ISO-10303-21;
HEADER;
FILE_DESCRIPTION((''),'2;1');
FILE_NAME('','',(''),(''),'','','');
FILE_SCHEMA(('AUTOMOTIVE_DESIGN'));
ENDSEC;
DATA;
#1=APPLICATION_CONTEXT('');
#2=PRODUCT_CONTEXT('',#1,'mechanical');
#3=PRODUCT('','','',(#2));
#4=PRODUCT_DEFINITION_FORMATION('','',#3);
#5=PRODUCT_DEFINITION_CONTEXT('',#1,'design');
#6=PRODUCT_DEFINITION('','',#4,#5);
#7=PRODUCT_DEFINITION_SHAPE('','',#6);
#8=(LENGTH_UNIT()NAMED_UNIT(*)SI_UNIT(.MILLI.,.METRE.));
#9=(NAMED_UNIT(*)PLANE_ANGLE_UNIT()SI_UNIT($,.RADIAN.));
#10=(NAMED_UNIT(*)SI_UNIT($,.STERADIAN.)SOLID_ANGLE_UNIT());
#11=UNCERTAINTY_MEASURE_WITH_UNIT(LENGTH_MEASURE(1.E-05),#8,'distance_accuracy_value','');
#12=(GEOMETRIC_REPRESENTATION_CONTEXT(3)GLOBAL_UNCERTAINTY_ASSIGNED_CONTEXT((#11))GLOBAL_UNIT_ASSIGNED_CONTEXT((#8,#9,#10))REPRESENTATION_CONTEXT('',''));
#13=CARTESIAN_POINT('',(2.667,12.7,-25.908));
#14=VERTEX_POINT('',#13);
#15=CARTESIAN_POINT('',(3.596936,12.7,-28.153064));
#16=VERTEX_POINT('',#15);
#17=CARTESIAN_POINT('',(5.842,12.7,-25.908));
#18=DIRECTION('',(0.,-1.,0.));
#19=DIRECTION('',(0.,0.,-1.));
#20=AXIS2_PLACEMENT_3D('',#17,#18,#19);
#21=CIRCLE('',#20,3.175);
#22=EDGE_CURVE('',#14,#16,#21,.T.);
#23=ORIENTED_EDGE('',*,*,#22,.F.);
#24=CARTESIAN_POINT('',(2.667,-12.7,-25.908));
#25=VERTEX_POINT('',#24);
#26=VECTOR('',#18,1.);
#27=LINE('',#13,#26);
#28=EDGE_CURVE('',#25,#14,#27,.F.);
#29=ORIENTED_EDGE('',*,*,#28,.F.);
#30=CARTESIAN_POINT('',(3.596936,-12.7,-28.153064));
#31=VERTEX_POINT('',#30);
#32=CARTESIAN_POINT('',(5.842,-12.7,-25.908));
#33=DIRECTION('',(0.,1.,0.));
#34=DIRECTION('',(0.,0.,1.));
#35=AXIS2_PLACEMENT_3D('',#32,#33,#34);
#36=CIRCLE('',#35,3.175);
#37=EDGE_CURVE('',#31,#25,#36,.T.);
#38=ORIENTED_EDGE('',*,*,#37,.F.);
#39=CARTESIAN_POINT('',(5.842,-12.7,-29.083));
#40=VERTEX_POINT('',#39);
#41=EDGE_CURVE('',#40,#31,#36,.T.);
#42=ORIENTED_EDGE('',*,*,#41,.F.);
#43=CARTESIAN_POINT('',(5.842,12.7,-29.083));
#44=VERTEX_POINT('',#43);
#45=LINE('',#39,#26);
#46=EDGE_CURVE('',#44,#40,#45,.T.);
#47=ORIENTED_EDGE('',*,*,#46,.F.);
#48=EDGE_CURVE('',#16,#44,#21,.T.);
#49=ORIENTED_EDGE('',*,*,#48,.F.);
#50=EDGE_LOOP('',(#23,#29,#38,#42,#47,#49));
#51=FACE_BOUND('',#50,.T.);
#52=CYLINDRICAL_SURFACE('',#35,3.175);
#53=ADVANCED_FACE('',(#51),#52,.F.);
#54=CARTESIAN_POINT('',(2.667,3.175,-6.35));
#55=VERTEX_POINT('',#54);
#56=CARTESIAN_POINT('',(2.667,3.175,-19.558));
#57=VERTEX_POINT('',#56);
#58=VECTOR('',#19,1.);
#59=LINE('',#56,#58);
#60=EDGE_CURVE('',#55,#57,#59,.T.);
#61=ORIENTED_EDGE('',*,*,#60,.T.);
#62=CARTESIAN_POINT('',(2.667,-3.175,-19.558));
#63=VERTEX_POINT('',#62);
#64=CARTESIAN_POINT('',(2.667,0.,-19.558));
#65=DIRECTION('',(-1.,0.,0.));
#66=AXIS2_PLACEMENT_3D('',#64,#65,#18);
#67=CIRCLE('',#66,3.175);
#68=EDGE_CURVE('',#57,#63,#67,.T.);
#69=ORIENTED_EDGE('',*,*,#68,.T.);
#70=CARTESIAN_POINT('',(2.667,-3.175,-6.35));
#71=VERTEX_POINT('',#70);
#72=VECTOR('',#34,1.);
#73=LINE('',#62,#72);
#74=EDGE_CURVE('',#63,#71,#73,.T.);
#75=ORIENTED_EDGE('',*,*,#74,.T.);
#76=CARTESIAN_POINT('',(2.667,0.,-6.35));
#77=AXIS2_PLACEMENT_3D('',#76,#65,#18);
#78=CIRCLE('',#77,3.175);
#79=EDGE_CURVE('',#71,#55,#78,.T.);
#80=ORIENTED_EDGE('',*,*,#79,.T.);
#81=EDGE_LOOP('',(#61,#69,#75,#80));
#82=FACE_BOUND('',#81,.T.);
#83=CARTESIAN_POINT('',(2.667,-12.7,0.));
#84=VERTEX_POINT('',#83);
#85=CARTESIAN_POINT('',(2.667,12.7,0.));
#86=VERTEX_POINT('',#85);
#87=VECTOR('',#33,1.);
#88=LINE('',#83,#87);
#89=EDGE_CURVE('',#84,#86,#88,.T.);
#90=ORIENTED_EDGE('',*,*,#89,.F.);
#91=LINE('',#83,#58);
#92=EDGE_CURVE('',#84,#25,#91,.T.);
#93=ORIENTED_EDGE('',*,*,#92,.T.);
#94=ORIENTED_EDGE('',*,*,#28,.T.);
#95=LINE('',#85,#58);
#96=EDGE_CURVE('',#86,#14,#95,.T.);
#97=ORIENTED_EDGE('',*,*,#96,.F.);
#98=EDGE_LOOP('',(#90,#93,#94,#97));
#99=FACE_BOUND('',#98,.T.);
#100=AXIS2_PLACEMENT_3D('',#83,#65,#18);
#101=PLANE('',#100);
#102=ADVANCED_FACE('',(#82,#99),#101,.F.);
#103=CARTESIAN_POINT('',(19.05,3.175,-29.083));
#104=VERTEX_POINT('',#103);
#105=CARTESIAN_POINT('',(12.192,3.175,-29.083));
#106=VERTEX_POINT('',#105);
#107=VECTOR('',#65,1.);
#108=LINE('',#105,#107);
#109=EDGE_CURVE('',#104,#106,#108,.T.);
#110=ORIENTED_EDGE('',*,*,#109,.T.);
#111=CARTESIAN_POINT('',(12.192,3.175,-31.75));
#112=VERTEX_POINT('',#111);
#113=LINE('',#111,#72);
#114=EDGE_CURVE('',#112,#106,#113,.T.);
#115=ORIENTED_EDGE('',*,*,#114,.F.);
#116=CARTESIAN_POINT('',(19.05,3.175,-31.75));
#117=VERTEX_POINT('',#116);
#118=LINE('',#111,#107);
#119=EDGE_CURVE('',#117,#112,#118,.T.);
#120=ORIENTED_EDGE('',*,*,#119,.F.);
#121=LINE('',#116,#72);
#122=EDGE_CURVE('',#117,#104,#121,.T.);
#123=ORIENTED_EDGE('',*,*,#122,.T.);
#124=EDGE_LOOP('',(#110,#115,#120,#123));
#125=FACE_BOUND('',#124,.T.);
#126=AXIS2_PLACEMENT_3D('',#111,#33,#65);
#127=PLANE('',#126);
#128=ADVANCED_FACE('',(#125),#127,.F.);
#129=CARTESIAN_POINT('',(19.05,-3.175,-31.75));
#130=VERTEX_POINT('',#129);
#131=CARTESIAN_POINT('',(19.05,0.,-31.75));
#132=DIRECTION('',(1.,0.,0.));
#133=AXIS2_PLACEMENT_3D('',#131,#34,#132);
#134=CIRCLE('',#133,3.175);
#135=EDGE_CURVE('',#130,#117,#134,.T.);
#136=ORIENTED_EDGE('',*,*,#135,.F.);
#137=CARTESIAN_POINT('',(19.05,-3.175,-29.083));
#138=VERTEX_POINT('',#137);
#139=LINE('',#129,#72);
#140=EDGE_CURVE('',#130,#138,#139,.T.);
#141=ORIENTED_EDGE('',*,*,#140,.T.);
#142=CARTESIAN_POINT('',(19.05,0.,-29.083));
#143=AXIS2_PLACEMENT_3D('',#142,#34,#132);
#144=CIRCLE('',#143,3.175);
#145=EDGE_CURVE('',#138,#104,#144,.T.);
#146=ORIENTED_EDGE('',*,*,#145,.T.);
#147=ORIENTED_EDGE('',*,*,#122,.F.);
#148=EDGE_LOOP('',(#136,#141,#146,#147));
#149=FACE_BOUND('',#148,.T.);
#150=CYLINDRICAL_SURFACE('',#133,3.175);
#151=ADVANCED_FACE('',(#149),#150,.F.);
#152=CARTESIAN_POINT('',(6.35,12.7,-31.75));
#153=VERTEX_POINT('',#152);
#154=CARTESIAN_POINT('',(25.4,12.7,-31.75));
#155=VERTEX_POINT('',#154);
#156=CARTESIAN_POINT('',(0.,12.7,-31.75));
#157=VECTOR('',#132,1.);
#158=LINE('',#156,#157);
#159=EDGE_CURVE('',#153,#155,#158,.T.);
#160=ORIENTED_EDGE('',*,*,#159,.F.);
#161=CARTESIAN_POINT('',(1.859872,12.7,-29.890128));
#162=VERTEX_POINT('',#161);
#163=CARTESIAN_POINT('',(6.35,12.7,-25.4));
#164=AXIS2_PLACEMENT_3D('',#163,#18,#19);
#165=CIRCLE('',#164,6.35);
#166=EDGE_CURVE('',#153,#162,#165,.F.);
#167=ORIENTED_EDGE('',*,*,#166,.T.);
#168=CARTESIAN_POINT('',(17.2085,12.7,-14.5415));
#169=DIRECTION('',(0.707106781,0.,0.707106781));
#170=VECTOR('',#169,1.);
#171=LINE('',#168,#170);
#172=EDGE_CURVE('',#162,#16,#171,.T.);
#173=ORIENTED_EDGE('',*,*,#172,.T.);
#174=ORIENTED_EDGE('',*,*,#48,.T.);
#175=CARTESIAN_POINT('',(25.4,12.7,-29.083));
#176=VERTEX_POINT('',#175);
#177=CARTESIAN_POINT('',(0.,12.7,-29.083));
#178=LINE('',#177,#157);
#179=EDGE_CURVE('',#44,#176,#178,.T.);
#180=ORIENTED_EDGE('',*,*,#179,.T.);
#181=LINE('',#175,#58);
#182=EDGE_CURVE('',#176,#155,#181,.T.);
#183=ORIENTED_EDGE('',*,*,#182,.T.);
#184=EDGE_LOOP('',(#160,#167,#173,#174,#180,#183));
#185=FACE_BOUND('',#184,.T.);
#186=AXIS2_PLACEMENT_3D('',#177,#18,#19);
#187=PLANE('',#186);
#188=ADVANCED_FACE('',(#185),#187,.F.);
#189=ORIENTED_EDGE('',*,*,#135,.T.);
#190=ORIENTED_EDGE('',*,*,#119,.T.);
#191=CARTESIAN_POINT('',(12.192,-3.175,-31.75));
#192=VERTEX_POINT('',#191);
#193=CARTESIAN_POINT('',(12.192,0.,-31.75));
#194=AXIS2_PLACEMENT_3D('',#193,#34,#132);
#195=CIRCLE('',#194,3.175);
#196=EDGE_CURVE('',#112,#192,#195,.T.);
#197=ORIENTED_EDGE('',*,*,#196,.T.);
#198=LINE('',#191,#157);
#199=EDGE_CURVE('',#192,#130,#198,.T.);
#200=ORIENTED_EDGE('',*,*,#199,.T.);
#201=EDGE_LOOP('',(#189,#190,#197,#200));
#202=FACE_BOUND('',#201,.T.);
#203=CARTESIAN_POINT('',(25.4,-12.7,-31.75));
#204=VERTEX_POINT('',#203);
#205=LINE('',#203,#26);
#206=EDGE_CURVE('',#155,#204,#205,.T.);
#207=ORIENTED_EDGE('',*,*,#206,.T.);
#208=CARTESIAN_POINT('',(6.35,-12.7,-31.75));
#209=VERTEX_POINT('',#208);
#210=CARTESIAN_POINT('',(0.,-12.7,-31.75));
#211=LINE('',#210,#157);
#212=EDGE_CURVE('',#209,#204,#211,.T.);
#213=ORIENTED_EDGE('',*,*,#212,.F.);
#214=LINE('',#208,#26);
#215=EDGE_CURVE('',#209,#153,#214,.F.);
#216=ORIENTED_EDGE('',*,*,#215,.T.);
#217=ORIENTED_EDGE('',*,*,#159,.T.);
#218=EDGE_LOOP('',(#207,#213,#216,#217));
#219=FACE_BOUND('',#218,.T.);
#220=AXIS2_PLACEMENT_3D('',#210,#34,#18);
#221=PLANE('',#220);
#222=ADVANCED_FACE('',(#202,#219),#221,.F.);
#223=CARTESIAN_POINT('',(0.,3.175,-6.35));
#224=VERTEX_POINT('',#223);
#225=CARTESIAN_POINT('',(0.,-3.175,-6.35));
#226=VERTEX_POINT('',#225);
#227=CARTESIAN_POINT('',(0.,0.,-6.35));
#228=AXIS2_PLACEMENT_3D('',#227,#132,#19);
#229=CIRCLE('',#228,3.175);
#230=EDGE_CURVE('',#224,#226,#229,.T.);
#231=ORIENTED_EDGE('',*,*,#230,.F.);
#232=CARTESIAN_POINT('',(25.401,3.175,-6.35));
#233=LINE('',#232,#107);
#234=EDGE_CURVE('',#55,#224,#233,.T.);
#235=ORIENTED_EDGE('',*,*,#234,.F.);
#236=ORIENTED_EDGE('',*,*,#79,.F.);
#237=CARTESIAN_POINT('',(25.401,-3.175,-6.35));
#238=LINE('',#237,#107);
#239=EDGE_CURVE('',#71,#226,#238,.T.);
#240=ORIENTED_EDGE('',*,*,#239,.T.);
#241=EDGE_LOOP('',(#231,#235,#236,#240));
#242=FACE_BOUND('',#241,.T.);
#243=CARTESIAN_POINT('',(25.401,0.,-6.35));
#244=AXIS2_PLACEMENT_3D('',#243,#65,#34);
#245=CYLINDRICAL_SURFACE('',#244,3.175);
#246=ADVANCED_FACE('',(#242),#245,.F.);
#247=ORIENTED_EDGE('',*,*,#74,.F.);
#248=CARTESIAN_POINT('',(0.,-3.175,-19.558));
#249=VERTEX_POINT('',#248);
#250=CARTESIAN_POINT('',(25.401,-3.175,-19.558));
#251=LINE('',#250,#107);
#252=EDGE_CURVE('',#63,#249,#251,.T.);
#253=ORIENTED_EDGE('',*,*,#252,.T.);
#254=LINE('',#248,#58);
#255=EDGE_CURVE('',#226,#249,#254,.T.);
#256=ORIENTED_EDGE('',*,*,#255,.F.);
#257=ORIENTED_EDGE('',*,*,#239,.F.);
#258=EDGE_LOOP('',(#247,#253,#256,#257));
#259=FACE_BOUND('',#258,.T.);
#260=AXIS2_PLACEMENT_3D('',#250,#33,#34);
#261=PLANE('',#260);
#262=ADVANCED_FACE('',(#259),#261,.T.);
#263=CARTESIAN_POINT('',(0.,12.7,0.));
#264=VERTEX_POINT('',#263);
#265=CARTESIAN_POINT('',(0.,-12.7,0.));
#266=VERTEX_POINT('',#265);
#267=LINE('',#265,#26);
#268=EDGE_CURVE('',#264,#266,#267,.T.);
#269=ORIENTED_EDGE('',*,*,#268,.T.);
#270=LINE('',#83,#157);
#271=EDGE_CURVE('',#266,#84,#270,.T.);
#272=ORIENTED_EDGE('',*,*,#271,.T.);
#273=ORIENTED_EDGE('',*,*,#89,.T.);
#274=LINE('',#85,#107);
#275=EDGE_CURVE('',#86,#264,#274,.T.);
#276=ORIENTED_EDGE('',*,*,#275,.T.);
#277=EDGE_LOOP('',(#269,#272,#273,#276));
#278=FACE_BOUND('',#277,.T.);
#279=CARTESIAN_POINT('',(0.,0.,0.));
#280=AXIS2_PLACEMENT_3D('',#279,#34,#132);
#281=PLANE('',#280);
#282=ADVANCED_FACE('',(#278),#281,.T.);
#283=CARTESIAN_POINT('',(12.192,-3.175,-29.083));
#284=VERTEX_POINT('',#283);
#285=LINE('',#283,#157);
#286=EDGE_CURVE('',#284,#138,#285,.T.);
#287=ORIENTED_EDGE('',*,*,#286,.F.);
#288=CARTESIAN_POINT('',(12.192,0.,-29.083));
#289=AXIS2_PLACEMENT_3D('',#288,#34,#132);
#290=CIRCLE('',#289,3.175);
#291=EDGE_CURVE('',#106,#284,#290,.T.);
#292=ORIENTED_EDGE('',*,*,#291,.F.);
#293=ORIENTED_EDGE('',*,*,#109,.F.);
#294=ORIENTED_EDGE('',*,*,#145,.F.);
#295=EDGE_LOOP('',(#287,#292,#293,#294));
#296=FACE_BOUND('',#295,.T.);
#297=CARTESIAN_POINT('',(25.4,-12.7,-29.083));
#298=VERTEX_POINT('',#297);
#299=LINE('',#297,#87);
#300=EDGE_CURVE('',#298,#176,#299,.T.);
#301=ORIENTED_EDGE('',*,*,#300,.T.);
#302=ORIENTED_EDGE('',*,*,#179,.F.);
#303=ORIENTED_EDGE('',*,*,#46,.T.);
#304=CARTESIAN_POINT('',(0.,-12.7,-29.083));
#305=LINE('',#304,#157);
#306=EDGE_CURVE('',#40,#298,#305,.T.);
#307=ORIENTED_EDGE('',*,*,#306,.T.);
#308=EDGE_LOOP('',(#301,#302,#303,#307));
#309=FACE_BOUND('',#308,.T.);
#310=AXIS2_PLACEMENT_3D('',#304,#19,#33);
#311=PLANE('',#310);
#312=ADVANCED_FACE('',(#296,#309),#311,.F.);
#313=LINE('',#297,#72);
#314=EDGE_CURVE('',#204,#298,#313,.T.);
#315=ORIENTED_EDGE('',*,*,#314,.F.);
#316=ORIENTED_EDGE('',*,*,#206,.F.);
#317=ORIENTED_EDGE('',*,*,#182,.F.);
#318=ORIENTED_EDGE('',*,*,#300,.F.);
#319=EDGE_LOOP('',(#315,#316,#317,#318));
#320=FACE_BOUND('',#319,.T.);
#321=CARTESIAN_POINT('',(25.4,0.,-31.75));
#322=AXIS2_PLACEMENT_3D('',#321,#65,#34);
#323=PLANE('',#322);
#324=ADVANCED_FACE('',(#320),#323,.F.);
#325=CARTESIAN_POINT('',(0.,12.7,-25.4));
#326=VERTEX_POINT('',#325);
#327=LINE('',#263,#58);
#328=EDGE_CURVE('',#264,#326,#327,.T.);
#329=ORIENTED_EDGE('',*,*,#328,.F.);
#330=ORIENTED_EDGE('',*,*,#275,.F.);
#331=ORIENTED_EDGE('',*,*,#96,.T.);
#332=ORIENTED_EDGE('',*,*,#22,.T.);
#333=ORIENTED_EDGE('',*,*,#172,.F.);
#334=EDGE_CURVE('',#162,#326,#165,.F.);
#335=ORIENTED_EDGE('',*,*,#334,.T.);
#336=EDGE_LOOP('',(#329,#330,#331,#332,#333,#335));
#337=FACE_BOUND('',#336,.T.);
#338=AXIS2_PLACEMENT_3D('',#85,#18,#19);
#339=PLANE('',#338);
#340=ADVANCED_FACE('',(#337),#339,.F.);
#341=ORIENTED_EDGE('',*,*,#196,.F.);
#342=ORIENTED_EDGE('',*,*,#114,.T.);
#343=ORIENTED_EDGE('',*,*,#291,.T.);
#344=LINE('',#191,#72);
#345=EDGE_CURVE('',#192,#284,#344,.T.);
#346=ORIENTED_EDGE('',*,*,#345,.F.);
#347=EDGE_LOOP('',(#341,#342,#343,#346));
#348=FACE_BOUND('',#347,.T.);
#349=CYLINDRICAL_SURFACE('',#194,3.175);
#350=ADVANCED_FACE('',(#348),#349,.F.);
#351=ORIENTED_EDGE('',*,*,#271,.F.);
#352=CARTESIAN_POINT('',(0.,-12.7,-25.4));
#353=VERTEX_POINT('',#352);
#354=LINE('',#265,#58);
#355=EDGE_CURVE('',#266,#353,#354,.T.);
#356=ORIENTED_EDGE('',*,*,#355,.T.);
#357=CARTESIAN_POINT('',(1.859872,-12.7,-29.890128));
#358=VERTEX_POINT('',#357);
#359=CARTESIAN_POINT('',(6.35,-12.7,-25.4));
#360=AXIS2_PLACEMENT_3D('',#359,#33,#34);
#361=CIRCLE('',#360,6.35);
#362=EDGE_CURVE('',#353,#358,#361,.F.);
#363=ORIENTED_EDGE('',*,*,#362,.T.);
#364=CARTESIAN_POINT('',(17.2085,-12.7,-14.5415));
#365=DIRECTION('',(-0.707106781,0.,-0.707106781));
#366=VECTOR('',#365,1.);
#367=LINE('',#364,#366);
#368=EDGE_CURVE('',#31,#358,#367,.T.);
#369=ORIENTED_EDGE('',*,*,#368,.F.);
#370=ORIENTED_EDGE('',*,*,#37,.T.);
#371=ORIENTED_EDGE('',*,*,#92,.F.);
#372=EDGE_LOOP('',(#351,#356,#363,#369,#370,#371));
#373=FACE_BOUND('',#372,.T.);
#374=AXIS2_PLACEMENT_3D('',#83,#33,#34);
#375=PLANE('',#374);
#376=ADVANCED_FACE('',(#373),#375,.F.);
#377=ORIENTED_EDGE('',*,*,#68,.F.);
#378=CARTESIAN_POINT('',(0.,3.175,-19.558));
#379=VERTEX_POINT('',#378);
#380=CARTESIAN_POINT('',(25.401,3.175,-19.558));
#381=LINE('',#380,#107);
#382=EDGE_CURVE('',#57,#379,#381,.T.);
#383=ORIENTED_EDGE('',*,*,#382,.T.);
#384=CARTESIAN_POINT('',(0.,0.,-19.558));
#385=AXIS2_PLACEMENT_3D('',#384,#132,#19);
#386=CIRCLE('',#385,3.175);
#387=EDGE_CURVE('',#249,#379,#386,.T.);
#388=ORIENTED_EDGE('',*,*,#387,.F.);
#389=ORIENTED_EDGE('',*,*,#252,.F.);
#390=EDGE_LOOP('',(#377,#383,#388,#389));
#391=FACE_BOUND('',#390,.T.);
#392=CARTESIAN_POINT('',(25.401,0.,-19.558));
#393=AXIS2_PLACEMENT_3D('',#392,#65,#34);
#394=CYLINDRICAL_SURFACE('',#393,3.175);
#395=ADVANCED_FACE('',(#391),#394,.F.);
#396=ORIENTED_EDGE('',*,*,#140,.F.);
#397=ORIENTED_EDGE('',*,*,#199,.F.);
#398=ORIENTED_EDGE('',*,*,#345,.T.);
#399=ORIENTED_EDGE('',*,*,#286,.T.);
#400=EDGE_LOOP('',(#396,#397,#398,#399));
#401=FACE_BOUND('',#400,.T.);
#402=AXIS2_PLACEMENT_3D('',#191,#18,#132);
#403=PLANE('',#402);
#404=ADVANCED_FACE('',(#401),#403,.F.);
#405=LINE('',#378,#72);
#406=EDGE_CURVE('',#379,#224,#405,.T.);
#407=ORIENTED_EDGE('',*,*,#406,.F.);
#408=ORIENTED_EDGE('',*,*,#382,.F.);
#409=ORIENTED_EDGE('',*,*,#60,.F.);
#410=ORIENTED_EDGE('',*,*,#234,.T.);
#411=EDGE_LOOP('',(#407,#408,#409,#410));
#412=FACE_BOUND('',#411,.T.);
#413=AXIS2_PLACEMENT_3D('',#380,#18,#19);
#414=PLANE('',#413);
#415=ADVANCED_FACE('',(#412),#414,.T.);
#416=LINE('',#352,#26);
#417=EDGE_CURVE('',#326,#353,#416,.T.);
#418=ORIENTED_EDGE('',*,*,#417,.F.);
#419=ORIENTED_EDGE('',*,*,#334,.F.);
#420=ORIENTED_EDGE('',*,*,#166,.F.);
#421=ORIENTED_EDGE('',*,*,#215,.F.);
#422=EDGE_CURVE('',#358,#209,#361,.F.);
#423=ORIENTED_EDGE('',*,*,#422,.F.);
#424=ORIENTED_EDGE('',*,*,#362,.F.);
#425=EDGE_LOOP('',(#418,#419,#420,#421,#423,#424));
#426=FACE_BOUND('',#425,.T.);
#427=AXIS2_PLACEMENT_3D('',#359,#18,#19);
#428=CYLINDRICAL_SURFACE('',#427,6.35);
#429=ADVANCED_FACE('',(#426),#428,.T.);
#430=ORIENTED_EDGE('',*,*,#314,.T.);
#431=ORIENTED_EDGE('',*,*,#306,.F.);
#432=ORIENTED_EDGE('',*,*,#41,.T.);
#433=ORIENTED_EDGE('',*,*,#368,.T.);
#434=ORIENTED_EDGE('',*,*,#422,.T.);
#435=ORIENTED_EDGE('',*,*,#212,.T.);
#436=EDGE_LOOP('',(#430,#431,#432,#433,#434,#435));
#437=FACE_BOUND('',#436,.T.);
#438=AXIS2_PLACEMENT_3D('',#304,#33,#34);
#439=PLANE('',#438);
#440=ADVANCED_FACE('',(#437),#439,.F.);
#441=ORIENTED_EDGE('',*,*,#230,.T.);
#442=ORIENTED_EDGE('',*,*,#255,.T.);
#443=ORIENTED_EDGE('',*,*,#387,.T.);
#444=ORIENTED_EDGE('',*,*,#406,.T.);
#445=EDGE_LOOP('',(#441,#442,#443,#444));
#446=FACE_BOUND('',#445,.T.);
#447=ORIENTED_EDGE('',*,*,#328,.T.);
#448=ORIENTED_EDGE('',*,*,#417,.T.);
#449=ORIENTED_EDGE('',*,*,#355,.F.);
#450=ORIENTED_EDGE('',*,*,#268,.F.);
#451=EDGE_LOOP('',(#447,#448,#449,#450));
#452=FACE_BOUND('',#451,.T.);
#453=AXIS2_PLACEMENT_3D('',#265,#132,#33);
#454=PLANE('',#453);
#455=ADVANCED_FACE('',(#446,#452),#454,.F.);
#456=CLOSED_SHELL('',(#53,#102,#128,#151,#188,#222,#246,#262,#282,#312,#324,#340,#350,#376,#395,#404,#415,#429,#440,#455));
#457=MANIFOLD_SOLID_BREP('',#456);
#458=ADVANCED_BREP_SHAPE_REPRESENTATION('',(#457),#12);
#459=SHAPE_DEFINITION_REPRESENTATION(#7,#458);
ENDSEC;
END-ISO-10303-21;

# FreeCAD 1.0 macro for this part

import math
import FreeCAD as App
import Part
import Sketcher
Q = App.Units.Quantity


def edges_at(feature, points):
    """Names of the edges that pass closest to the given points."""
    edges = feature.Shape.Edges
    near = lambda p: min(range(len(edges)), key=lambda i: edges[i].distToShape(Part.Vertex(*p))[0])
    return sorted({f"Edge{near(p) + 1}" for p in points})


def add_polygon(sketch, points):
    """Adds a closed chain of lines whose ends are joined by coincident constraints."""
    first, n = sketch.GeometryCount, len(points)
    for a, b in zip(points, points[1:] + points[:1]):
        sketch.addGeometry(Part.LineSegment(App.Vector(*a, 0), App.Vector(*b, 0)), False)
    for i in range(n):
        sketch.addConstraint(Sketcher.Constraint("Coincident", first + i, 2, first + (i + 1) % n, 1))

doc = App.newDocument("Part")
body = doc.addObject("PartDesign::Body", "Body")

# Sketch on XY plane
sketch1 = body.newObject("Sketcher::SketchObject", "Sketch")
sketch1.AttachmentSupport = (doc.getObject("XY_Plane"), [""])
sketch1.MapMode = "FlatFace"
add_polygon(sketch1, [(0, 12.7), (0, -12.7), (2.7, -12.7), (2.7, 12.7)])  # lines 0-3
sketch1.addConstraint([
    Sketcher.Constraint("Vertical", 0),
    Sketcher.Constraint("Horizontal", 1),
    Sketcher.Constraint("Vertical", 2),
    Sketcher.Constraint("Horizontal", 3),
    Sketcher.Constraint("Symmetric", 0, 2, 3, 2, -1, 1),
    Sketcher.Constraint("DistanceY", 0, 2, 0, 1, Q("1 in")),
    Sketcher.Constraint("DistanceX", 1, 1, 1, 2, Q("0.105 in")),
])

# Sketch on XZ plane
sketch2 = body.newObject("Sketcher::SketchObject", "Sketch001")
sketch2.AttachmentSupport = (doc.getObject("XZ_Plane"), [""])
sketch2.MapMode = "FlatFace"
sketch2.addGeometry([
    Part.LineSegment(App.Vector(0, 0, 0), App.Vector(0, -32, 0)),
    Part.LineSegment(App.Vector(0, -32, 0), App.Vector(25, -32, 0)),
], False)
sketch2.addConstraint([
    Sketcher.Constraint("Coincident", 0, 2, 1, 1),
    Sketcher.Constraint("Vertical", 0),
    Sketcher.Constraint("Horizontal", 1),
    Sketcher.Constraint("Coincident", 0, 1, -1, 1),
    Sketcher.Constraint("DistanceX", 1, 1, 1, 2, Q("1 in")),
    Sketcher.Constraint("DistanceY", 0, 2, 0, 1, Q("1.25 in")),
])
doc.recompute()

additivepipe = body.newObject("PartDesign::AdditivePipe", "AdditivePipe")
additivepipe.Profile = sketch1
additivepipe.Spine = (sketch2, ["Edge1", "Edge2"])
additivepipe.Transition = "Right corner"
doc.recompute()

fillet = body.newObject("PartDesign::Fillet", "Fillet")
fillet.Base = (additivepipe, edges_at(additivepipe, [(2.667, 0, -29.083)]))
fillet.Radius = Q("0.125 in")
doc.recompute()

fillet2 = body.newObject("PartDesign::Fillet", "Fillet001")
fillet2.Base = (fillet, edges_at(fillet, [(0, 0, -31.75)]))
fillet2.Radius = Q("0.25 in")

# Sketch on YZ plane
sketch3 = body.newObject("Sketcher::SketchObject", "Sketch002")
sketch3.AttachmentSupport = (doc.getObject("YZ_Plane"), [""])
sketch3.MapMode = "FlatFace"
sketch3.addGeometry([
    Part.LineSegment(App.Vector(-3.2, -6.3, 0), App.Vector(-3.2, -19.6, 0)),
    Part.ArcOfCircle(Part.Circle(App.Vector(0, -19.6, 0), App.Vector(0, 0, 1), 3.2), math.radians(180), math.radians(360)),
    Part.LineSegment(App.Vector(3.2, -19.6, 0), App.Vector(3.2, -6.3, 0)),
    Part.ArcOfCircle(Part.Circle(App.Vector(0, -6.3, 0), App.Vector(0, 0, 1), 3.2), math.radians(0), math.radians(180)),
], False)
sketch3.addConstraint([
    Sketcher.Constraint("Tangent", 0, 2, 1, 1),
    Sketcher.Constraint("Tangent", 1, 2, 2, 1),
    Sketcher.Constraint("Tangent", 2, 2, 3, 1),
    Sketcher.Constraint("Tangent", 3, 2, 0, 1),
    Sketcher.Constraint("Vertical", 0),
    Sketcher.Constraint("Vertical", 2),
    Sketcher.Constraint("PointOnObject", 1, 3, -2),
    Sketcher.Constraint("Radius", 1, Q("0.125 in")),
    Sketcher.Constraint("DistanceY", 0, 2, 0, 1, Q("0.52 in")),
    Sketcher.Constraint("DistanceY", 1, 3, -1, 1, Q("0.77 in")),
])
pocket1 = body.newObject("PartDesign::Pocket", "Pocket")
pocket1.Profile = sketch3
pocket1.Type = "UpToFirst"
pocket1.Reversed = True

# Sketch on XY plane
sketch4 = body.newObject("Sketcher::SketchObject", "Sketch003")
sketch4.AttachmentSupport = (doc.getObject("XY_Plane"), [""])
sketch4.MapMode = "FlatFace"
sketch4.AttachmentOffset = App.Placement(App.Vector(0, 0, -1.145 * 25.4), App.Rotation())
sketch4.addGeometry([
    Part.LineSegment(App.Vector(19.1, 3.2, 0), App.Vector(12.2, 3.2, 0)),
    Part.ArcOfCircle(Part.Circle(App.Vector(12.2, 0, 0), App.Vector(0, 0, 1), 3.2), math.radians(90), math.radians(270)),
    Part.LineSegment(App.Vector(12.2, -3.2, 0), App.Vector(19.1, -3.2, 0)),
    Part.ArcOfCircle(Part.Circle(App.Vector(19.1, 0, 0), App.Vector(0, 0, 1), 3.2), math.radians(-90), math.radians(90)),
], False)
sketch4.addConstraint([
    Sketcher.Constraint("Tangent", 0, 2, 1, 1),
    Sketcher.Constraint("Tangent", 1, 2, 2, 1),
    Sketcher.Constraint("Tangent", 2, 2, 3, 1),
    Sketcher.Constraint("Tangent", 3, 2, 0, 1),
    Sketcher.Constraint("Horizontal", 0),
    Sketcher.Constraint("Horizontal", 2),
    Sketcher.Constraint("PointOnObject", 1, 3, -1),
    Sketcher.Constraint("Radius", 1, Q("0.125 in")),
    Sketcher.Constraint("DistanceX", 0, 2, 0, 1, Q("0.27 in")),
    Sketcher.Constraint("DistanceX", -1, 1, 1, 3, Q("0.48 in")),
])
pocket2 = body.newObject("PartDesign::Pocket", "Pocket001")
pocket2.Profile = sketch4
pocket2.Type = "ThroughAll"

doc.recompute()
